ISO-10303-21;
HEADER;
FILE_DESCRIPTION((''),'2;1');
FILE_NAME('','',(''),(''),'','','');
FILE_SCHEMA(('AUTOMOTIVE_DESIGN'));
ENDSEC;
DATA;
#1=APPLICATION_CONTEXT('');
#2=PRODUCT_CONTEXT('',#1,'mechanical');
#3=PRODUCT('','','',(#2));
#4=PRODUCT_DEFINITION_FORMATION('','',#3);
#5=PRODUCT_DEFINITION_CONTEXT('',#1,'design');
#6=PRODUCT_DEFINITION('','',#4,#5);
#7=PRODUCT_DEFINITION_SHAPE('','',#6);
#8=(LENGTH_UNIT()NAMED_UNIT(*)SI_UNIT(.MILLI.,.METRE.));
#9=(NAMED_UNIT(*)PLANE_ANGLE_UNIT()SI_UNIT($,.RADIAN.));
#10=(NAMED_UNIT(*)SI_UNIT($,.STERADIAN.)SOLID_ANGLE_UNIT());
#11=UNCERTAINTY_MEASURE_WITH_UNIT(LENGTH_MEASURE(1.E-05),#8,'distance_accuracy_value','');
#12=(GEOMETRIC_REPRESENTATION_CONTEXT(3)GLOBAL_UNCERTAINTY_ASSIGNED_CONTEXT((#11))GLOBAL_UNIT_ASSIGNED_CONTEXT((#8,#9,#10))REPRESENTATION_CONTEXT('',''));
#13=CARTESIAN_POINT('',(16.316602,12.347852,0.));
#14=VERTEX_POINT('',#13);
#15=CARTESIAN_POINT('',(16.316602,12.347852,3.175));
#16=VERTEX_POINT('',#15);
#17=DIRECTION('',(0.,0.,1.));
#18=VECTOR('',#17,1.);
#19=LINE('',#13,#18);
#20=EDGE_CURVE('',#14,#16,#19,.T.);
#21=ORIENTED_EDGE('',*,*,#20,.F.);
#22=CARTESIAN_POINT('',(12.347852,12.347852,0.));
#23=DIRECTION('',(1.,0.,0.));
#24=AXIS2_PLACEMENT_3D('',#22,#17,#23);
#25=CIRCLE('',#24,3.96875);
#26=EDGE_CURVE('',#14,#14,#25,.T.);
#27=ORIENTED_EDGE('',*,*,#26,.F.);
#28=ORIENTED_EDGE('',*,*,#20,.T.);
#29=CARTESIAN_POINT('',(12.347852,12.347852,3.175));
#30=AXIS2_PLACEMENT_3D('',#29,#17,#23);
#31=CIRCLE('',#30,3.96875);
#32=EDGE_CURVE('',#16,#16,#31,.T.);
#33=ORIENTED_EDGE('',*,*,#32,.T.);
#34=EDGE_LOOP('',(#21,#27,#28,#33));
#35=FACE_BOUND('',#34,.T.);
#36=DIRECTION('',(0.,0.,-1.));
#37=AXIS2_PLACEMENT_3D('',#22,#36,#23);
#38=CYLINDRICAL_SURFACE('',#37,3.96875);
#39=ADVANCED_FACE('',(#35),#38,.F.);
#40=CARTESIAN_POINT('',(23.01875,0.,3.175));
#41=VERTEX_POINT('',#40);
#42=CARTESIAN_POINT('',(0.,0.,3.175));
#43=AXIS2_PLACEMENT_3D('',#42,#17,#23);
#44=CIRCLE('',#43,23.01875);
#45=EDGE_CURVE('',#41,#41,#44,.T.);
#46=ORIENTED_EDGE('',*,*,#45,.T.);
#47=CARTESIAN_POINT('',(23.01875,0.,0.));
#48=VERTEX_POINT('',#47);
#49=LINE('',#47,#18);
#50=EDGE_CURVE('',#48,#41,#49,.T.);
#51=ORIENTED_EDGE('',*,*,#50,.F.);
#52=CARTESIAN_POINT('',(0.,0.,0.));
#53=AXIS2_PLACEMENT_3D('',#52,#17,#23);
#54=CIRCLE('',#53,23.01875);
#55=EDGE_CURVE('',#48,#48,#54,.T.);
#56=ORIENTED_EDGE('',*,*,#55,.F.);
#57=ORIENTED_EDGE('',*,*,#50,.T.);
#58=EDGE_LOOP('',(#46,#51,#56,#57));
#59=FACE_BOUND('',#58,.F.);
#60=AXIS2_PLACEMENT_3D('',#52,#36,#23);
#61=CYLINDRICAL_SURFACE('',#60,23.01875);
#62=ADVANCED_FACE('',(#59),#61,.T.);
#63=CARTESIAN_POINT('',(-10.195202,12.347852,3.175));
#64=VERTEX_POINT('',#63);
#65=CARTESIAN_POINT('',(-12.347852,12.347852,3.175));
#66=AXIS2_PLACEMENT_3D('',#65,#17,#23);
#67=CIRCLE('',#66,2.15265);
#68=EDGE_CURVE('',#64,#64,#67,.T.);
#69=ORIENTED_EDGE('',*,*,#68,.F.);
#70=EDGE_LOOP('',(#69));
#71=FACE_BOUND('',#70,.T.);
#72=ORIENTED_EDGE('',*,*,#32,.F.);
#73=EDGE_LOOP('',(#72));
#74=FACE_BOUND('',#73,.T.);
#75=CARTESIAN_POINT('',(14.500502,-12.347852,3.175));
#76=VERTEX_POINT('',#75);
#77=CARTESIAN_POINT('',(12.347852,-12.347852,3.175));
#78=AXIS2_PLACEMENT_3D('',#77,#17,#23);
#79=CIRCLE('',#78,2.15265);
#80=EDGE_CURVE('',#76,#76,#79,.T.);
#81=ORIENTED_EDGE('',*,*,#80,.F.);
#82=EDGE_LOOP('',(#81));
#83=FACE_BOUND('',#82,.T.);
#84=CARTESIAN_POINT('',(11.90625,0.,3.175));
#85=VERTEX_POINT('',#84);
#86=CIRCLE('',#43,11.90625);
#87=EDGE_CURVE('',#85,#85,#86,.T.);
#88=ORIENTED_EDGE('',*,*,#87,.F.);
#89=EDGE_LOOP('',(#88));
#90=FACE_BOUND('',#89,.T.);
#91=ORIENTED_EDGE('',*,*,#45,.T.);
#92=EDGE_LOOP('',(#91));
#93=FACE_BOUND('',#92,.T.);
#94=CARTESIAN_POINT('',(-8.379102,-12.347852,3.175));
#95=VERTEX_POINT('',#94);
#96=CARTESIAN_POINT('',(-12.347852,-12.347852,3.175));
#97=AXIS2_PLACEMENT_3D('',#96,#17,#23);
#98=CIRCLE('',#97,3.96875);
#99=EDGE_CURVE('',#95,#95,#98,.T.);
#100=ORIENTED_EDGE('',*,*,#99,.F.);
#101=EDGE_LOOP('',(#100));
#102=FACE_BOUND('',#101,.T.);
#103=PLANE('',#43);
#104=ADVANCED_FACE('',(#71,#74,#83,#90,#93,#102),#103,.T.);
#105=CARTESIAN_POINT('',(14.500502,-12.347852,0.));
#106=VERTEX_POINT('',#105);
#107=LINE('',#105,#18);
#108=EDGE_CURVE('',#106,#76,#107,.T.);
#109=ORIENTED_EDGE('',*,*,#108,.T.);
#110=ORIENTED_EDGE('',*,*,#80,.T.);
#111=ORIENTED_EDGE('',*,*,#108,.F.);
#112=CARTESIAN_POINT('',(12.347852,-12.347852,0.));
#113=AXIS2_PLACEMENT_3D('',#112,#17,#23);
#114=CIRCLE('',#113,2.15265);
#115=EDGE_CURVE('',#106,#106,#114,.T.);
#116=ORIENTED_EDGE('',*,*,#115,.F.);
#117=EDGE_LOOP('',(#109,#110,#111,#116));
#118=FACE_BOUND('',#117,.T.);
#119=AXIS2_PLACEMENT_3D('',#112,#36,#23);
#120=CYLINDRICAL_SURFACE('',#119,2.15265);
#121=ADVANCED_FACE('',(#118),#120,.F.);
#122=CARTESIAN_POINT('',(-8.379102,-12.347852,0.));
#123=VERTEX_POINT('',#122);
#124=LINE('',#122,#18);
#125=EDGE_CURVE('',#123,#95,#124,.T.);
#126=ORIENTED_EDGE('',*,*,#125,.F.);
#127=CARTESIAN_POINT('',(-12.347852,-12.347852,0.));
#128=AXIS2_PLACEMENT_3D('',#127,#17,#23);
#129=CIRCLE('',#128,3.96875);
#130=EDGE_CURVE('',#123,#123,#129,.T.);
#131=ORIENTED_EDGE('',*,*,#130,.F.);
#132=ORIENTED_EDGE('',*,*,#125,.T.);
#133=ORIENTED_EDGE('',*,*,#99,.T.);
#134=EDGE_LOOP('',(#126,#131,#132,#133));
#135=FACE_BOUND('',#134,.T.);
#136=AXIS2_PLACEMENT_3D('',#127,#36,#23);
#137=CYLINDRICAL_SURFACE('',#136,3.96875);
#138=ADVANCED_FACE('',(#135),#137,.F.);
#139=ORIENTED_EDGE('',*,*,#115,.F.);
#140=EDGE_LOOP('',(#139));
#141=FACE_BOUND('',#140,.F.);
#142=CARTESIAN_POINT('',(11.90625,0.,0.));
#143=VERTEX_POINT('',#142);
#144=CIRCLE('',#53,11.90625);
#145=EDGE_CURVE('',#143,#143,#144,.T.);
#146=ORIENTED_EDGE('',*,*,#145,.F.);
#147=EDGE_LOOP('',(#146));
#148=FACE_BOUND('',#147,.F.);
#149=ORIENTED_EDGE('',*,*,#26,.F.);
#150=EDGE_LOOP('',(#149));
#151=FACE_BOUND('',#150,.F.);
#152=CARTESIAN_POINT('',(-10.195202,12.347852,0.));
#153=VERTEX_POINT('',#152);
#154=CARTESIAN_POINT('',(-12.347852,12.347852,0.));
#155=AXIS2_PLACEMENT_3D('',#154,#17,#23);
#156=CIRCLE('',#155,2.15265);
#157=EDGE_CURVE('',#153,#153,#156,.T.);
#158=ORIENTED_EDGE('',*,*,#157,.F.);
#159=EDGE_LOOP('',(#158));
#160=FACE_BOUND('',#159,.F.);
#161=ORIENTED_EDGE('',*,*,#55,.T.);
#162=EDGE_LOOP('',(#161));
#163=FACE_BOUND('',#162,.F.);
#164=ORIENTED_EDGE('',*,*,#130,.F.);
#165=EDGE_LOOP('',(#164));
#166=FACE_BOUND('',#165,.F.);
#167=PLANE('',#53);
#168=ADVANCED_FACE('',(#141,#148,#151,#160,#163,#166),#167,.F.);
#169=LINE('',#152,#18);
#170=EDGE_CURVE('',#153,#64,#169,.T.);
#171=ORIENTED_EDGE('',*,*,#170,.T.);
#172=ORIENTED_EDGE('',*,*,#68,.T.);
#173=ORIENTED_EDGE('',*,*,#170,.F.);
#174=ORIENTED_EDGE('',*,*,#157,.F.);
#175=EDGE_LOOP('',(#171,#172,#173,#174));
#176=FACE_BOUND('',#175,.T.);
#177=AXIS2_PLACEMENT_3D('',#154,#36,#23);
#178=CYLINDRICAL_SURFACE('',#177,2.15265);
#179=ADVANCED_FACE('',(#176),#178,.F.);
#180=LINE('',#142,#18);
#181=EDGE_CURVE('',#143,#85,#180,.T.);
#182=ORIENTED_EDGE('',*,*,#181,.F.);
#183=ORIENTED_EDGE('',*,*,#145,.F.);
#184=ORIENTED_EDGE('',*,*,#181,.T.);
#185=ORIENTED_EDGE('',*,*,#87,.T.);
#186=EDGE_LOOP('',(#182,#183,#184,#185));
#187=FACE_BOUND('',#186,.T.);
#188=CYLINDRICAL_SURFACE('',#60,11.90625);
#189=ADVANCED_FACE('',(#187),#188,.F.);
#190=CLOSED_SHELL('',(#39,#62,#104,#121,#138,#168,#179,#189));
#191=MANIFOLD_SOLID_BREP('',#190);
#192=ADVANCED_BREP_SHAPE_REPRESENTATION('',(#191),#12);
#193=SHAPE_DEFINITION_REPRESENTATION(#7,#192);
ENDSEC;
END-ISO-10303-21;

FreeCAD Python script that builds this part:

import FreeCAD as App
import Part
import Sketcher

V = App.Vector
Q = App.Units.Quantity

doc = App.newDocument("Part")
params = doc.addObject("Spreadsheet::Sheet", "Params")
for row, (alias, value) in enumerate([
    ("sketch1_diameter", "1.8125 in"),
    ("sketch1_diameter2", "0.3125 in"),
    ("sketch1_diameter3", "0.9375 in"),
    ("pad1_length", "0.125 in"),
], start=1):
    params.set(f"A{row}", alias)
    params.set(f"B{row}", "=" + value)
    params.setAlias(f"B{row}", alias)

body = doc.addObject("PartDesign::Body", "Body")

# Sketch on XY plane
sketch1 = body.newObject("Sketcher::SketchObject", "Sketch")
sketch1.AttachmentSupport = (doc.getObject("XY_Plane"), [""])
sketch1.MapMode = "FlatFace"
sketch1.addGeometry([
    Part.Circle(V(0, 0, 0), V(0, 0, 1), 23),  # 0
    Part.Circle(V(-12.3, -12.3, 0), V(0, 0, 1), 4),  # 1
    Part.Circle(V(12.3, -12.3, 0), V(0, 0, 1), 2.2),  # 2
    Part.Circle(V(0, 0, 0), V(0, 0, 1), 11.9),  # 3
    Part.Circle(V(-12.3, 12.3, 0), V(0, 0, 1), 2.2),  # 4
    Part.Circle(V(12.3, 12.3, 0), V(0, 0, 1), 4),  # 5
], False)
sketch1.addConstraint([
    Sketcher.Constraint("Coincident", 0, 3, -1, 1),
    Sketcher.Constraint("Coincident", 3, 3, -1, 1),
    Sketcher.Constraint("Equal", 2, 4),
    Sketcher.Constraint("Equal", 1, 5),
    Sketcher.Constraint("Symmetric", 2, 3, 4, 3, -1, 1),
    Sketcher.Constraint("Symmetric", 1, 3, 5, 3, -1, 1),
    Sketcher.Constraint("Symmetric", 1, 3, 2, 3, -2),
    Sketcher.Constraint("Diameter", 0, Q("1.8125 in")),
    Sketcher.Constraint("Diameter", 1, Q("0.3125 in")),
    Sketcher.Constraint("Diameter", 3, Q("0.9375 in")),
    Sketcher.Constraint("Diameter", 2, Q("0.1695 in")),
    Sketcher.Constraint("DistanceX", 1, 3, -1, 1, Q("12.347852 mm")),
    Sketcher.Constraint("DistanceY", 1, 3, -1, 1, Q("12.347852 mm")),
])
sketch1.setExpression("Constraints[7]", "Params.sketch1_diameter")
sketch1.setExpression("Constraints[8]", "Params.sketch1_diameter2")
sketch1.setExpression("Constraints[9]", "Params.sketch1_diameter3")
pad1 = body.newObject("PartDesign::Pad", "Pad")
pad1.Profile = sketch1
pad1.setExpression("Length", "Params.pad1_length")

doc.recompute()
